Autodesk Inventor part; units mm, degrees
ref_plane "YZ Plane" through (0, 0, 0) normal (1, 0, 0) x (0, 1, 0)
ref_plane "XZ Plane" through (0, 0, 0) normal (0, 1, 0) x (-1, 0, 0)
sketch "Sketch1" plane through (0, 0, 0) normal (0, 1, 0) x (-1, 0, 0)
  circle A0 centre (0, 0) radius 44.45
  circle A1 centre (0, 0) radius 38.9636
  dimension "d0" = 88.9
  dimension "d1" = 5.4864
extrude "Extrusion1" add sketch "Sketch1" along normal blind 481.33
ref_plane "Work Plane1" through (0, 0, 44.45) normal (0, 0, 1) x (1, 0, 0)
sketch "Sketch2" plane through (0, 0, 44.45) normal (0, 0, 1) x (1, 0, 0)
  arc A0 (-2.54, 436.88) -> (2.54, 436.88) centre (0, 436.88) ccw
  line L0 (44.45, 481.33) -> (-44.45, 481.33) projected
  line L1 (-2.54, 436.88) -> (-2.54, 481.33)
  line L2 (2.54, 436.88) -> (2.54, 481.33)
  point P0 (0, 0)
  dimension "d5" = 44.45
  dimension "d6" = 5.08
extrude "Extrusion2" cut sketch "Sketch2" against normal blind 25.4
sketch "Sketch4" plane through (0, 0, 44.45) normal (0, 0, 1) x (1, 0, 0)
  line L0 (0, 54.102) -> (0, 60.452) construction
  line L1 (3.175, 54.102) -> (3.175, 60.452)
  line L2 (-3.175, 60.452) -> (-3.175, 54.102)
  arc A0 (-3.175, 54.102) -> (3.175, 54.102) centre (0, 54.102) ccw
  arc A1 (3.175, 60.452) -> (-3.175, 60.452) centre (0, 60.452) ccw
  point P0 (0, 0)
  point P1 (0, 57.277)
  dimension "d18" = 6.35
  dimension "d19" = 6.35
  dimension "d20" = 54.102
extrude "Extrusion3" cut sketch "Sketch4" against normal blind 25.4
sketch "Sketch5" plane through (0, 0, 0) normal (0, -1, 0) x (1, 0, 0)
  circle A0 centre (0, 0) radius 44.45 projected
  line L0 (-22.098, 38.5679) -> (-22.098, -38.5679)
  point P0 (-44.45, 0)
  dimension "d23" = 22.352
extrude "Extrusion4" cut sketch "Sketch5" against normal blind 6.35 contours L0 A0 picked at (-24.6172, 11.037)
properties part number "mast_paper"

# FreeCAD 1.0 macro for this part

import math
import FreeCAD as App
import Part
import Sketcher
from FreeCAD import Vector
Q = App.Units.Quantity

doc = App.newDocument("Part")
body = doc.addObject("PartDesign::Body", "Body")

sketch1 = doc.addObject("Sketcher::SketchObject", "Sketch")
body.addObject(sketch1)
sketch1.AttachmentSupport = (doc.XZ_Plane, [""])
sketch1.MapMode = "FlatFace"
sketch1.addGeometry(Part.Circle(Vector(0, 0, 0), Vector(0, 0, 1), 44), False)
sketch1.addGeometry(Part.Circle(Vector(0, 0, 0), Vector(0, 0, 1), 39), False)
sketch1.addConstraint(Sketcher.Constraint("Coincident", 0, 3, -1, 1))
sketch1.addConstraint(Sketcher.Constraint("Coincident", 1, 3, -1, 1))
sketch1.addConstraint(Sketcher.Constraint("Diameter", 0, Q("3.5 in")))
sketch1.addConstraint(Sketcher.Constraint("Diameter", 1, Q("3.068 in")))
pad1 = doc.addObject("PartDesign::Pad", "Pad")
body.addObject(pad1)
pad1.Profile = sketch1
pad1.Length = Q("18.95 in")
pad1.Reversed = True

sketch2 = doc.addObject("Sketcher::SketchObject", "Sketch001")
body.addObject(sketch2)
sketch2.AttachmentSupport = (doc.XY_Plane, [""])
sketch2.MapMode = "FlatFace"
sketch2.AttachmentOffset = App.Placement(Vector(0, 0, 1.75 * 25.4), App.Rotation())
sketch2.addGeometry(Part.LineSegment(Vector(-2.5, 481.3, 0), Vector(-2.5, 436.9, 0)), False)
sketch2.addGeometry(Part.ArcOfCircle(Part.Circle(Vector(0, 436.9, 0), Vector(0, 0, 1), 2.5), math.radians(180), math.radians(360)), False)
sketch2.addGeometry(Part.LineSegment(Vector(2.5, 436.9, 0), Vector(2.5, 481.3, 0)), False)
sketch2.addGeometry(Part.LineSegment(Vector(2.5, 481.3, 0), Vector(-2.5, 481.3, 0)), False)
sketch2.addConstraint(Sketcher.Constraint("Tangent", 0, 2, 1, 1))
sketch2.addConstraint(Sketcher.Constraint("Tangent", 1, 2, 2, 1))
sketch2.addConstraint(Sketcher.Constraint("Coincident", 2, 2, 3, 1))
sketch2.addConstraint(Sketcher.Constraint("Coincident", 3, 2, 0, 1))
sketch2.addConstraint(Sketcher.Constraint("Vertical", 0))
sketch2.addConstraint(Sketcher.Constraint("Vertical", 2))
sketch2.addConstraint(Sketcher.Constraint("Horizontal", 3))
sketch2.addConstraint(Sketcher.Constraint("PointOnObject", 1, 3, -2))
sketch2.addConstraint(Sketcher.Constraint("Radius", 1, Q("0.1 in")))
sketch2.addConstraint(Sketcher.Constraint("DistanceY", 0, 2, 0, 1, Q("1.75 in")))
sketch2.addConstraint(Sketcher.Constraint("DistanceY", -1, 1, 1, 3, Q("17.2 in")))
pocket1 = doc.addObject("PartDesign::Pocket", "Pocket")
body.addObject(pocket1)
pocket1.Profile = sketch2
pocket1.Length = Q("1 in")

sketch3 = doc.addObject("Sketcher::SketchObject", "Sketch002")
body.addObject(sketch3)
sketch3.AttachmentSupport = (doc.XY_Plane, [""])
sketch3.MapMode = "FlatFace"
sketch3.AttachmentOffset = App.Placement(Vector(0, 0, 1.75 * 25.4), App.Rotation())
sketch3.addGeometry(Part.ArcOfCircle(Part.Circle(Vector(0, 54.1, 0), Vector(0, 0, 1), 3.2), math.radians(180), math.radians(360)), False)
sketch3.addGeometry(Part.LineSegment(Vector(3.2, 54.1, 0), Vector(3.2, 60.5, 0)), False)
sketch3.addGeometry(Part.ArcOfCircle(Part.Circle(Vector(0, 60.5, 0), Vector(0, 0, 1), 3.2), math.radians(0), math.radians(180)), False)
sketch3.addGeometry(Part.LineSegment(Vector(-3.2, 60.5, 0), Vector(-3.2, 54.1, 0)), False)
sketch3.addConstraint(Sketcher.Constraint("Tangent", 0, 2, 1, 1))
sketch3.addConstraint(Sketcher.Constraint("Tangent", 1, 2, 2, 1))
sketch3.addConstraint(Sketcher.Constraint("Tangent", 2, 2, 3, 1))
sketch3.addConstraint(Sketcher.Constraint("Tangent", 3, 2, 0, 1))
sketch3.addConstraint(Sketcher.Constraint("Vertical", 1))
sketch3.addConstraint(Sketcher.Constraint("Vertical", 3))
sketch3.addConstraint(Sketcher.Constraint("PointOnObject", 0, 3, -2))
sketch3.addConstraint(Sketcher.Constraint("Radius", 0, Q("0.125 in")))
sketch3.addConstraint(Sketcher.Constraint("DistanceY", 1, 1, 1, 2, Q("0.25 in")))
sketch3.addConstraint(Sketcher.Constraint("DistanceY", -1, 1, 0, 3, Q("2.13 in")))
pocket2 = doc.addObject("PartDesign::Pocket", "Pocket001")
body.addObject(pocket2)
pocket2.Profile = sketch3
pocket2.Length = Q("1 in")

sketch4 = doc.addObject("Sketcher::SketchObject", "Sketch003")
body.addObject(sketch4)
sketch4.AttachmentSupport = (doc.XZ_Plane, [""])
sketch4.MapMode = "FlatFace"
sketch4.addGeometry(Part.LineSegment(Vector(-22, -39, 0), Vector(-22, 39, 0)), False)
sketch4.addGeometry(Part.ArcOfCircle(Part.Circle(Vector(0, 0, 0), Vector(0, 0, 1), 44), math.radians(120), math.radians(240)), False)
sketch4.addConstraint(Sketcher.Constraint("Coincident", 0, 1, 1, 2))
sketch4.addConstraint(Sketcher.Constraint("Coincident", 1, 1, 0, 2))
sketch4.addConstraint(Sketcher.Constraint("Vertical", 0))
sketch4.addConstraint(Sketcher.Constraint("Coincident", 1, 3, -1, 1))
sketch4.addConstraint(Sketcher.Constraint("Radius", 1, Q("1.75 in")))
sketch4.addConstraint(Sketcher.Constraint("DistanceX", 0, 1, -1, 1, Q("0.87 in")))
pocket3 = doc.addObject("PartDesign::Pocket", "Pocket002")
body.addObject(pocket3)
pocket3.Profile = sketch4
pocket3.Length = Q("0.25 in")

doc.recompute()
